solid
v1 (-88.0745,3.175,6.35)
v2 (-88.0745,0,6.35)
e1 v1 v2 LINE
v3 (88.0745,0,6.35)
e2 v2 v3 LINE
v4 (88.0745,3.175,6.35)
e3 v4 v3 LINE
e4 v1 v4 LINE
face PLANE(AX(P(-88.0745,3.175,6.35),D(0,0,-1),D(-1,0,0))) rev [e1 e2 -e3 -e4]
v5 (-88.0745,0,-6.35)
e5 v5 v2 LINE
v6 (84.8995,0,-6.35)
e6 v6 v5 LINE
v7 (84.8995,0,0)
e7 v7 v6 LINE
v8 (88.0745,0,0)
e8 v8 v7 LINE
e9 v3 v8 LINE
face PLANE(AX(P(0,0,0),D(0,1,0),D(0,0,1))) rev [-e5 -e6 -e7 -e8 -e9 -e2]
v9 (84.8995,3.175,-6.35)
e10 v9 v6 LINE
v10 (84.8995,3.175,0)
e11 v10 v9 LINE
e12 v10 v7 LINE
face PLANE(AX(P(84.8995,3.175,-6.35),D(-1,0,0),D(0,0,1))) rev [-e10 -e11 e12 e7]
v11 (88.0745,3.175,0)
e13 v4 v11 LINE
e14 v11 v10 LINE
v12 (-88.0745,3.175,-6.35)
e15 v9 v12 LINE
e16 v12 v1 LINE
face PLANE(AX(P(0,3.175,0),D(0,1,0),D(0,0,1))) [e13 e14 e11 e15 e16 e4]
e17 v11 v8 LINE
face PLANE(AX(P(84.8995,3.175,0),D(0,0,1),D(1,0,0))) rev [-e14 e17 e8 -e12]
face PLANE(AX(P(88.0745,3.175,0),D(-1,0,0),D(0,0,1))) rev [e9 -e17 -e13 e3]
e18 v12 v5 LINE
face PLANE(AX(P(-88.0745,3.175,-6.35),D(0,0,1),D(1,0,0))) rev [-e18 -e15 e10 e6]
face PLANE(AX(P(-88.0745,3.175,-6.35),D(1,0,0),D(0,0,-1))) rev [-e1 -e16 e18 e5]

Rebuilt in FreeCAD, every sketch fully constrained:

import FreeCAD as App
import Part
import Sketcher
Q = App.Units.Quantity

doc = App.newDocument("Part")
body = doc.addObject("PartDesign::Body", "Body")

sketch1 = body.newObject("Sketcher::SketchObject", "Sketch")
sketch1.AttachmentSupport = (doc.getObject("XZ_Plane"), [""])
sketch1.MapMode = "FlatFace"
sketch1.addGeometry(Part.LineSegment(App.Vector(84.9, 0, 0), App.Vector(84.9, -6.3, 0)), False)
sketch1.addGeometry(Part.LineSegment(App.Vector(84.9, -6.3, 0), App.Vector(-88.1, -6.3, 0)), False)
sketch1.addGeometry(Part.LineSegment(App.Vector(-88.1, -6.3, 0), App.Vector(-88.1, 6.3, 0)), False)
sketch1.addGeometry(Part.LineSegment(App.Vector(-88.1, 6.3, 0), App.Vector(88.1, 6.3, 0)), False)
sketch1.addGeometry(Part.LineSegment(App.Vector(88.1, 6.3, 0), App.Vector(88.1, 0, 0)), False)
sketch1.addGeometry(Part.LineSegment(App.Vector(88.1, 0, 0), App.Vector(84.9, 0, 0)), False)
sketch1.addConstraint(Sketcher.Constraint("Coincident", 0, 2, 1, 1))
sketch1.addConstraint(Sketcher.Constraint("Coincident", 1, 2, 2, 1))
sketch1.addConstraint(Sketcher.Constraint("Coincident", 2, 2, 3, 1))
sketch1.addConstraint(Sketcher.Constraint("Coincident", 3, 2, 4, 1))
sketch1.addConstraint(Sketcher.Constraint("Coincident", 4, 2, 5, 1))
sketch1.addConstraint(Sketcher.Constraint("Coincident", 5, 2, 0, 1))
sketch1.addConstraint(Sketcher.Constraint("Vertical", 0))
sketch1.addConstraint(Sketcher.Constraint("Horizontal", 1))
sketch1.addConstraint(Sketcher.Constraint("Vertical", 2))
sketch1.addConstraint(Sketcher.Constraint("Horizontal", 3))
sketch1.addConstraint(Sketcher.Constraint("Vertical", 4))
sketch1.addConstraint(Sketcher.Constraint("Horizontal", 5))
sketch1.addConstraint(Sketcher.Constraint("Symmetric", 1, 2, 3, 2, -1, 1))
sketch1.addConstraint(Sketcher.Constraint("PointOnObject", 4, 2, -1))
sketch1.addConstraint(Sketcher.Constraint("DistanceY", 2, 1, 2, 2, Q("0.5 in")))
sketch1.addConstraint(Sketcher.Constraint("DistanceX", 1, 2, 1, 1, Q("6.81 in")))
sketch1.addConstraint(Sketcher.Constraint("DistanceX", 3, 1, 3, 2, Q("6.935 in")))
pad1 = body.newObject("PartDesign::Pad", "Pad")
pad1.Profile = sketch1
pad1.Length = Q("0.125 in")
pad1.Reversed = True

doc.recompute()
